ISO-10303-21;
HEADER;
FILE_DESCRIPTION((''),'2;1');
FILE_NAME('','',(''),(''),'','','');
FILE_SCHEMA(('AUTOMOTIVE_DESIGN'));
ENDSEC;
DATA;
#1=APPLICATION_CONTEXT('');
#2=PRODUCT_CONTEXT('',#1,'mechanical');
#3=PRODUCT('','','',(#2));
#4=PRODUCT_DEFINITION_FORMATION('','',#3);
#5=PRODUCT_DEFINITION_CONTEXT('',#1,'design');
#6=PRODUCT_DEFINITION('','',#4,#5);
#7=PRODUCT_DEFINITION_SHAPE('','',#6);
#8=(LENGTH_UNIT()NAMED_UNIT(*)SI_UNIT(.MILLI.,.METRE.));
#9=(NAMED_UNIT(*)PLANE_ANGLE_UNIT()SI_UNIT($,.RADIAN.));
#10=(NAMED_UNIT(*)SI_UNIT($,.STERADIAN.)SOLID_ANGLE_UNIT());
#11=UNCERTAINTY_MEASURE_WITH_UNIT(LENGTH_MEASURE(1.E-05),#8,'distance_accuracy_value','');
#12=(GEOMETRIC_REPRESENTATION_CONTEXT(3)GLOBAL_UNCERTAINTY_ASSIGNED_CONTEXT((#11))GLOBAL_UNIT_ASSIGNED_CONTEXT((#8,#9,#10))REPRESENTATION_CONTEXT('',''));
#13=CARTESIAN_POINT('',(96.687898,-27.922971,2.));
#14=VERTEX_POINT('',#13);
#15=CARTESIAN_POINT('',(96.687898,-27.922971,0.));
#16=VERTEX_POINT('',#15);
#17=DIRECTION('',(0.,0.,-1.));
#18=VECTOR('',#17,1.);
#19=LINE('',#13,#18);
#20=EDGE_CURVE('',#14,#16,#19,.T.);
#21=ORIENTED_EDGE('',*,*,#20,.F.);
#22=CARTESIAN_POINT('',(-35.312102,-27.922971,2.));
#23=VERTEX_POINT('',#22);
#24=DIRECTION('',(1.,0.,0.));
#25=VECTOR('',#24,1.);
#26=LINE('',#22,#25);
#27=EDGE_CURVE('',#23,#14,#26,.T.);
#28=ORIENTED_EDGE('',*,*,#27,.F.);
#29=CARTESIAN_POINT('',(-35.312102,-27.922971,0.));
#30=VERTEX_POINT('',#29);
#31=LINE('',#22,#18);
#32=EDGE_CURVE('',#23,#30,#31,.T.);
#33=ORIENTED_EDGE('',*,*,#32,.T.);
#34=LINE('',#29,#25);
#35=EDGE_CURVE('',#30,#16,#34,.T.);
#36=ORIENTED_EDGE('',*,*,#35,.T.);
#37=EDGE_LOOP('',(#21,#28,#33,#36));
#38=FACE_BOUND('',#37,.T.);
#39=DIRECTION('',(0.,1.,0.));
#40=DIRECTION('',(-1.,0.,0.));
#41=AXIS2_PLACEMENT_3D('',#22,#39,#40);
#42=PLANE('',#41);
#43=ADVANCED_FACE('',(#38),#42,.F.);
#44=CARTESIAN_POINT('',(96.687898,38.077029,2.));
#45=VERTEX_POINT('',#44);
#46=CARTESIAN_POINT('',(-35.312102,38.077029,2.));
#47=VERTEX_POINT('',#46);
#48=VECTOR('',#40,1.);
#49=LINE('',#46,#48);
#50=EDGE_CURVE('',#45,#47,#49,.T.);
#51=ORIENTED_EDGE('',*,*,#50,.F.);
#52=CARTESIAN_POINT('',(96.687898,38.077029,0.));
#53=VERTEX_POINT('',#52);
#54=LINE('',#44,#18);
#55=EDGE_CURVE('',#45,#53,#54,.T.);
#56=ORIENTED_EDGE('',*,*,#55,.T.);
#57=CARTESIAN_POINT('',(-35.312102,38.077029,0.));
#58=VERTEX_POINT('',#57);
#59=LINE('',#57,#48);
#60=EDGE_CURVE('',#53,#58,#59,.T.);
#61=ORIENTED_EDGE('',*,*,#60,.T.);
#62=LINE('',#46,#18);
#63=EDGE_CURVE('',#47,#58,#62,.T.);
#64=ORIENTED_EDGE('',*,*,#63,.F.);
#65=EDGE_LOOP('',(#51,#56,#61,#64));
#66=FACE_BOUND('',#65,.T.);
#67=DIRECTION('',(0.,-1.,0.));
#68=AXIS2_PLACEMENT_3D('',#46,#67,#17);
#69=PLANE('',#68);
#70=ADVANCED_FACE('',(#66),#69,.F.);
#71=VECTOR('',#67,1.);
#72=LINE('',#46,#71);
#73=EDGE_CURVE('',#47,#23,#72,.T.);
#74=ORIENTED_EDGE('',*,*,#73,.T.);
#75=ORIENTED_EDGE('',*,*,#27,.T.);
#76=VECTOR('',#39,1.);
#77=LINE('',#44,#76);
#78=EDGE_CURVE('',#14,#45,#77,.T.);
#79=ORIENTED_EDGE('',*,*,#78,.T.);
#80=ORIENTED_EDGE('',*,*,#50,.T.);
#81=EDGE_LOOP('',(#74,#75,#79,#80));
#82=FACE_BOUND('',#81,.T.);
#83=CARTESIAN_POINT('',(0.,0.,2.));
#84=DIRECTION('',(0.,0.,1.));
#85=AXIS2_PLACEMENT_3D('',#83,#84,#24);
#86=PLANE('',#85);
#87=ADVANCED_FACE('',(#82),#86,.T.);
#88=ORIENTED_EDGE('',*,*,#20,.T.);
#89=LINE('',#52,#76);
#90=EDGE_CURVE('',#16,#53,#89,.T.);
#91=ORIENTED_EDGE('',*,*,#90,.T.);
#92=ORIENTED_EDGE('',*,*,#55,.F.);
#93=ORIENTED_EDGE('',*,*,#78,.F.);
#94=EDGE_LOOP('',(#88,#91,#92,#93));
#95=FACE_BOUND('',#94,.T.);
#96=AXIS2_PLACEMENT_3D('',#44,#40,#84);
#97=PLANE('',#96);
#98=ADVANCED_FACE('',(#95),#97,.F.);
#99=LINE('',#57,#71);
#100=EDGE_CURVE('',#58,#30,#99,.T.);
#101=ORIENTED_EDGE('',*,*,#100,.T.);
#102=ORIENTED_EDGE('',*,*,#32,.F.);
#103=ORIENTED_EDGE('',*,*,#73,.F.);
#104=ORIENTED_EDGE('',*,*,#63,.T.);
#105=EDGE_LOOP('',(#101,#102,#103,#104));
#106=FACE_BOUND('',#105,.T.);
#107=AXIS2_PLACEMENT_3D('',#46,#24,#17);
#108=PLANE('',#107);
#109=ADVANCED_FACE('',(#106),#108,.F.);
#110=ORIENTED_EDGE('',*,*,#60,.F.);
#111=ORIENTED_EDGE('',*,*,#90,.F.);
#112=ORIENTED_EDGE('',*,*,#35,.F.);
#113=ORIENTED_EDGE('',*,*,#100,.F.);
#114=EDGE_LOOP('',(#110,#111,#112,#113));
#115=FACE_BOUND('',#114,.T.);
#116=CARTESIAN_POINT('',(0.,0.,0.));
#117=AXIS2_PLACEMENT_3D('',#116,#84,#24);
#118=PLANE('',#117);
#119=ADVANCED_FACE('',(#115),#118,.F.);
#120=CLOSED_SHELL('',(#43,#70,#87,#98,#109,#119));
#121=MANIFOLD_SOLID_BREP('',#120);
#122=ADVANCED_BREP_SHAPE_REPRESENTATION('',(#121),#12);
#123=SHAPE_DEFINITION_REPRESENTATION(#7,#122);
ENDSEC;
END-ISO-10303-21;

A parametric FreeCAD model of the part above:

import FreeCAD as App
import Part
import Sketcher
from FreeCAD import Vector

doc = App.newDocument("Part")
params = doc.addObject("Spreadsheet::Sheet", "Params")
for row, (alias, value) in enumerate([
    ("sketch1_width", "132 mm"),
    ("sketch1_height", "66 mm"),
    ("pad1_length", "2 mm"),
], start=1):
    params.set(f"A{row}", alias)
    params.set(f"B{row}", "=" + value)
    params.setAlias(f"B{row}", alias)

body = doc.addObject("PartDesign::Body", "Body")

# Sketch on XY plane
sketch1 = body.newObject("Sketcher::SketchObject", "Sketch")
sketch1.AttachmentSupport = (doc.getObject("XY_Plane"), [""])
sketch1.MapMode = "FlatFace"
sketch1.addGeometry(Part.LineSegment(Vector(-35.312102, 38.077029, 0), Vector(-35.312102, -27.922971, 0)), False)
sketch1.addGeometry(Part.LineSegment(Vector(-35.312102, -27.922971, 0), Vector(96.687898, -27.922971, 0)), False)
sketch1.addGeometry(Part.LineSegment(Vector(96.687898, -27.922971, 0), Vector(96.687898, 38.077029, 0)), False)
sketch1.addGeometry(Part.LineSegment(Vector(96.687898, 38.077029, 0), Vector(-35.312102, 38.077029, 0)), False)
sketch1.addConstraint(Sketcher.Constraint("Coincident", 0, 2, 1, 1))
sketch1.addConstraint(Sketcher.Constraint("Coincident", 1, 2, 2, 1))
sketch1.addConstraint(Sketcher.Constraint("Coincident", 2, 2, 3, 1))
sketch1.addConstraint(Sketcher.Constraint("Coincident", 3, 2, 0, 1))
sketch1.addConstraint(Sketcher.Constraint("Vertical", 0))
sketch1.addConstraint(Sketcher.Constraint("Horizontal", 1))
sketch1.addConstraint(Sketcher.Constraint("Vertical", 2))
sketch1.addConstraint(Sketcher.Constraint("Horizontal", 3))
sketch1.addConstraint(Sketcher.Constraint("DistanceX", 1, 1, 1, 2, 132.0))
sketch1.addConstraint(Sketcher.Constraint("DistanceY", 0, 2, 0, 1, 66.0))
sketch1.addConstraint(Sketcher.Constraint("DistanceX", 0, 2, -1, 1, 35.312102))
sketch1.addConstraint(Sketcher.Constraint("DistanceY", 0, 2, -1, 1, 27.922971))
sketch1.setExpression("Constraints[8]", "Params.sketch1_width")
sketch1.setExpression("Constraints[9]", "Params.sketch1_height")
pad1 = body.newObject("PartDesign::Pad", "Pad")
pad1.Profile = sketch1
pad1.setExpression("Length", "Params.pad1_length")

doc.recompute()
